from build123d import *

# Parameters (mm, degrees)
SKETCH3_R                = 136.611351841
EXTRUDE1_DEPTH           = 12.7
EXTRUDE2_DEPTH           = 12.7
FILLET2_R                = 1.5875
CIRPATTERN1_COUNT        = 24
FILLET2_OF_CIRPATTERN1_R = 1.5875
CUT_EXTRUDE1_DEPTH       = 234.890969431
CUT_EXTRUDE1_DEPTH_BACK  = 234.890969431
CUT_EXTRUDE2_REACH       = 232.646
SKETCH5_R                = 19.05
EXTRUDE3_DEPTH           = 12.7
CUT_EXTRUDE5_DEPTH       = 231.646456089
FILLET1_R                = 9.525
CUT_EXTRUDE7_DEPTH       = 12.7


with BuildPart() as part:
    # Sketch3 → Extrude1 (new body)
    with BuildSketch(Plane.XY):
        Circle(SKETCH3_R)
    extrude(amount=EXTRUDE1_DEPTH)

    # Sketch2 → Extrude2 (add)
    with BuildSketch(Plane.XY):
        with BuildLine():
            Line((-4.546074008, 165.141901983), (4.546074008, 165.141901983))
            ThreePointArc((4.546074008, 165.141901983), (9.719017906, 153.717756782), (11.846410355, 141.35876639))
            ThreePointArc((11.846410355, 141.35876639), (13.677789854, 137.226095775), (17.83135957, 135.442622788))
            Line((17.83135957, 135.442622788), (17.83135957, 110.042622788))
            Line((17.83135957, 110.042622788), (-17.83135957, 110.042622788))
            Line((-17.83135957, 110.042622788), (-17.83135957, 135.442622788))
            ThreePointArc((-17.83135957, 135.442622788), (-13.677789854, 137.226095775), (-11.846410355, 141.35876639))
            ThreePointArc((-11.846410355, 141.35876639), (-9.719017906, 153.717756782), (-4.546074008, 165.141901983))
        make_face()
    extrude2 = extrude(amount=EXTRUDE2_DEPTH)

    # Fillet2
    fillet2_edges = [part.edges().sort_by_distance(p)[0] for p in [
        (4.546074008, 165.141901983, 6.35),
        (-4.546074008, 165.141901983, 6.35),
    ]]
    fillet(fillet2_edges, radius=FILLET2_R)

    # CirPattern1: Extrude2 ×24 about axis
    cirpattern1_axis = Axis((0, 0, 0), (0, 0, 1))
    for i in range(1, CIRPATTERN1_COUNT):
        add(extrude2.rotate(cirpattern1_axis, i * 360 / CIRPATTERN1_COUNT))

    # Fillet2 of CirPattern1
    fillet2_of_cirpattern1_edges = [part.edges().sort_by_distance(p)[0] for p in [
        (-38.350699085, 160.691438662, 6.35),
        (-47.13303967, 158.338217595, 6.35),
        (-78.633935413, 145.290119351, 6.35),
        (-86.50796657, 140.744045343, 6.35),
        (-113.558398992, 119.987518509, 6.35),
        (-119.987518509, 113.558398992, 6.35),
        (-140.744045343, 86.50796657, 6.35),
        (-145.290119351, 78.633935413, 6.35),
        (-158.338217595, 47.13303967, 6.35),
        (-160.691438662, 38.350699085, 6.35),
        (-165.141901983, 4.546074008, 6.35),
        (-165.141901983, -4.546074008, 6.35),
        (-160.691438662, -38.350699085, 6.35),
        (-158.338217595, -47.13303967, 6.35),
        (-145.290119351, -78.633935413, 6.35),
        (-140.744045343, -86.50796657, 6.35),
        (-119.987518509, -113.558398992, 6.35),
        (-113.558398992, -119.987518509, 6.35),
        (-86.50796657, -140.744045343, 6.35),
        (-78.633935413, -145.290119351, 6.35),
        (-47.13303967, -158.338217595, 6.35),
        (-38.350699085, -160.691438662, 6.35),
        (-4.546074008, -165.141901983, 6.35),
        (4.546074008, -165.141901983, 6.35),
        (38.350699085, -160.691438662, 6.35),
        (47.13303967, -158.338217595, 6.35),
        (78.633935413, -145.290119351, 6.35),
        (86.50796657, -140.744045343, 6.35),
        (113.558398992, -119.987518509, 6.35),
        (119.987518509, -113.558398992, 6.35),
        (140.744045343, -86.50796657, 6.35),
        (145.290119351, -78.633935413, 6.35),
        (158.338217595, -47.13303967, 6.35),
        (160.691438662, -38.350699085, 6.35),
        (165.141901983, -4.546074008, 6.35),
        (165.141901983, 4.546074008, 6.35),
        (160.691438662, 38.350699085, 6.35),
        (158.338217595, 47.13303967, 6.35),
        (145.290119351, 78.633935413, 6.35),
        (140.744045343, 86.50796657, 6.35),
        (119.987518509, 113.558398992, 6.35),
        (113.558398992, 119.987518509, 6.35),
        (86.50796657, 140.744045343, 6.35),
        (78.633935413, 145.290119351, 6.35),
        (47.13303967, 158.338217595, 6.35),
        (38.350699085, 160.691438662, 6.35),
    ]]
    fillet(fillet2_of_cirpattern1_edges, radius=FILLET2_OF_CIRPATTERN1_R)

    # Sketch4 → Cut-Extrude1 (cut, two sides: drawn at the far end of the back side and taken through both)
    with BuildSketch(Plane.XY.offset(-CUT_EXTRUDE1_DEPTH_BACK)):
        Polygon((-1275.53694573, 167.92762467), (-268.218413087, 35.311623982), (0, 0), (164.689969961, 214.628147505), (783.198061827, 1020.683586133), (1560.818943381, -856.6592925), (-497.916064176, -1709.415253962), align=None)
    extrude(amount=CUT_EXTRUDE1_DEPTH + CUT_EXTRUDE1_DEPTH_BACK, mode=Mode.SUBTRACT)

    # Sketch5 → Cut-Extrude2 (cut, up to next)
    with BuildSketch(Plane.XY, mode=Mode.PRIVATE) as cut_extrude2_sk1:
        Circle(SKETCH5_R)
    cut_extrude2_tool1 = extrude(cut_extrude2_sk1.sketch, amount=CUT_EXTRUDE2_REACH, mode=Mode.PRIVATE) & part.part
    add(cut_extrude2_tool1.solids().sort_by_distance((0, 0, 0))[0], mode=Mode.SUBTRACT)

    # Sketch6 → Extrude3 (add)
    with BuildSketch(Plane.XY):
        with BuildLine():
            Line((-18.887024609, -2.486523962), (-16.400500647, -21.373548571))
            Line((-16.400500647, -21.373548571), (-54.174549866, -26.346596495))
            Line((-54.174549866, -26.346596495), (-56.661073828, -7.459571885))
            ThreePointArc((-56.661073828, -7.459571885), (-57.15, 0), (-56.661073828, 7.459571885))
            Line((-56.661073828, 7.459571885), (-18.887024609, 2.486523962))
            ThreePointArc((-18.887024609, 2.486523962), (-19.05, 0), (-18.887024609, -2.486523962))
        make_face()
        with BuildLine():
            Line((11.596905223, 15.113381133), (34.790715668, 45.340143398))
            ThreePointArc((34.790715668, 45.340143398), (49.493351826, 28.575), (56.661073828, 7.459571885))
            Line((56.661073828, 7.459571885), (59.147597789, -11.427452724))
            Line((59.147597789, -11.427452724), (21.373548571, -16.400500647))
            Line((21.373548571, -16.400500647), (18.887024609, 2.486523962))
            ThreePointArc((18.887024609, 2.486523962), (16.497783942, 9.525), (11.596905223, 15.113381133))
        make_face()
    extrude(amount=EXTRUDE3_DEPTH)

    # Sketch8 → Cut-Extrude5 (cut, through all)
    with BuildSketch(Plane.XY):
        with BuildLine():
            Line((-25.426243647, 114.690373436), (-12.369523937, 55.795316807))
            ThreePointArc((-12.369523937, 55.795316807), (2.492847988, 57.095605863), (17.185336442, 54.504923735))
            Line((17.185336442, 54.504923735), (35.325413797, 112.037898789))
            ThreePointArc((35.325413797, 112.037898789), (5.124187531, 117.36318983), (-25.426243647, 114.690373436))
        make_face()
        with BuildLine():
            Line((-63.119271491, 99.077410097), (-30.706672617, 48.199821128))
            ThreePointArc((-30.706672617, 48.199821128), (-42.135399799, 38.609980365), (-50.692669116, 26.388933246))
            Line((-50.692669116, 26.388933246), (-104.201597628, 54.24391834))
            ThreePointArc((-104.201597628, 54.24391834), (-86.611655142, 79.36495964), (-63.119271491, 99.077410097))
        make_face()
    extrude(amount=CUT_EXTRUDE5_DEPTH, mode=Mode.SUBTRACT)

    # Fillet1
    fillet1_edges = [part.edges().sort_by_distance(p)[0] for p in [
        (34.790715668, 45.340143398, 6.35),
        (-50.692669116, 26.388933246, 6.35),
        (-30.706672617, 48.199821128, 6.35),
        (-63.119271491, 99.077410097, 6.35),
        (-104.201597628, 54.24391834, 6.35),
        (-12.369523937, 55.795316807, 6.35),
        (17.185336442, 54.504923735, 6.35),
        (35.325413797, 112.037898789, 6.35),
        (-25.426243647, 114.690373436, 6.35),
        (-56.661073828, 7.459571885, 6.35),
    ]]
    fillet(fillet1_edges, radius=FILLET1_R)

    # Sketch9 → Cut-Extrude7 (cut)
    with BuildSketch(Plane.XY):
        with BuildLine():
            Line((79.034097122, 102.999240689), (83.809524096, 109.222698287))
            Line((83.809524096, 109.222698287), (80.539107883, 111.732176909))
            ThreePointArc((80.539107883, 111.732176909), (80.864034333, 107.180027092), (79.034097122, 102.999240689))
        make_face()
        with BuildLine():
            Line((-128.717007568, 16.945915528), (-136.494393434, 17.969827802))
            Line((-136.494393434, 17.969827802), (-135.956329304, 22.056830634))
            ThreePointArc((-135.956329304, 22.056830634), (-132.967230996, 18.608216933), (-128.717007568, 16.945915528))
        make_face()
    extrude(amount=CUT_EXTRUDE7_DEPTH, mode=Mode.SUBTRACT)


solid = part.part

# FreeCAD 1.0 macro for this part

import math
import FreeCAD as App
import Part
import Sketcher
from FreeCAD import Vector
Q = App.Units.Quantity


def edges_at(feature, points):
    """Names of the edges that pass closest to the given points."""
    edges = feature.Shape.Edges
    near = lambda p: min(range(len(edges)), key=lambda i: edges[i].distToShape(Part.Vertex(*p))[0])
    return sorted({f"Edge{near(p) + 1}" for p in points})

doc = App.newDocument("Part")
body = doc.addObject("PartDesign::Body", "Body")

# Sketch on XY plane
sketch1 = body.newObject("Sketcher::SketchObject", "Sketch")
sketch1.AttachmentSupport = (doc.getObject("XY_Plane"), [""])
sketch1.MapMode = "FlatFace"
sketch1.addGeometry(Part.Circle(Vector(0, 0, 0), Vector(0, 0, 1), 137), False)
sketch1.addConstraint([
    Sketcher.Constraint("Coincident", 0, 3, -1, 1),
    Sketcher.Constraint("Diameter", 0, Q("273.222704 mm")),
])
pad1 = body.newObject("PartDesign::Pad", "Pad")
pad1.Profile = sketch1
pad1.Length = Q("0.5 in")

# Sketch on XY plane
sketch2 = body.newObject("Sketcher::SketchObject", "Sketch001")
sketch2.AttachmentSupport = (doc.getObject("XY_Plane"), [""])
sketch2.MapMode = "FlatFace"
sketch2.addGeometry([
    Part.LineSegment(Vector(5, 165, 0), Vector(-5, 165, 0)),  # 0
    Part.ArcOfCircle(Part.Circle(Vector(37, 139, 0), Vector(0, 0, 1), 49), math.radians(148), math.radians(178)),  # 1
    Part.ArcOfCircle(Part.Circle(Vector(-18, 142, 0), Vector(0, 0, 1), 6), math.radians(-88), math.radians(-2)),  # 2
    Part.LineSegment(Vector(-18, 135, 0), Vector(-18, 110, 0)),  # 3
    Part.LineSegment(Vector(-18, 110, 0), Vector(18, 110, 0)),  # 4
    Part.LineSegment(Vector(18, 110, 0), Vector(18, 135, 0)),  # 5
    Part.ArcOfCircle(Part.Circle(Vector(18, 142, 0), Vector(0, 0, 1), 6), math.radians(-178), math.radians(-92)),  # 6
    Part.ArcOfCircle(Part.Circle(Vector(-37, 139, 0), Vector(0, 0, 1), 49), math.radians(2), math.radians(32)),  # 7
], False)
sketch2.addConstraint([
    Sketcher.Constraint("Coincident", 0, 2, 1, 1),
    Sketcher.Constraint("Tangent", 1, 2, 2, 2),
    Sketcher.Constraint("Coincident", 2, 1, 3, 1),
    Sketcher.Constraint("Coincident", 3, 2, 4, 1),
    Sketcher.Constraint("Coincident", 4, 2, 5, 1),
    Sketcher.Constraint("Coincident", 5, 2, 6, 2),
    Sketcher.Constraint("Tangent", 6, 1, 7, 1),
    Sketcher.Constraint("Coincident", 7, 2, 0, 1),
    Sketcher.Constraint("Horizontal", 0),
    Sketcher.Constraint("Vertical", 3),
    Sketcher.Constraint("Horizontal", 4),
    Sketcher.Constraint("Vertical", 5),
    Sketcher.Constraint("Equal", 2, 6),
    Sketcher.Constraint("Equal", 1, 7),
    Sketcher.Constraint("Symmetric", 2, 3, 6, 3, -2),
    Sketcher.Constraint("Horizontal", 1, 3, 7, 3),
    Sketcher.Constraint("Horizontal", 2, 1, 5, 2),
    Sketcher.Constraint("DistanceY", 3, 2, 3, 1, Q("1 in")),
    Sketcher.Constraint("Radius", 1, Q("49.366081 mm")),
    Sketcher.Constraint("Radius", 2, Q("6.185748 mm")),
    Sketcher.Constraint("DistanceX", 0, 2, 0, 1, Q("9.092148 mm")),
    Sketcher.Constraint("DistanceX", 4, 1, 4, 2, Q("35.662719 mm")),
    Sketcher.Constraint("DistanceY", -1, 1, 0, 2, Q("165.141902 mm")),
    Sketcher.Constraint("DistanceX", 0, 2, 1, 3, Q("42.019899 mm")),
    Sketcher.Constraint("DistanceX", 1, 2, -1, 1, Q("11.84641 mm")),
])
pad2 = body.newObject("PartDesign::Pad", "Pad001")
pad2.Profile = sketch2
pad2.Length = Q("0.5 in")
doc.recompute()

fillet = body.newObject("PartDesign::Fillet", "Fillet")
fillet.Base = (pad2, edges_at(pad2, [(4.546, 165.142, 6.35), (-4.546, 165.142, 6.35)]))
fillet.Radius = Q("0.0625 in")
doc.recompute()

polarpattern = body.newObject("PartDesign::PolarPattern", "PolarPattern")
polarpattern.Originals = [pad2]
polarpattern.Axis = (doc.getObject("Z_Axis"), [""])
polarpattern.Angle = 360
polarpattern.Occurrences = 24
body.Tip = polarpattern
doc.recompute()

fillet2 = body.newObject("PartDesign::Fillet", "Fillet001")
fillet2.Base = (polarpattern, edges_at(polarpattern, [
    (-38.351, 160.691, 6.35),
    (-47.133, 158.338, 6.35),
    (-78.634, 145.29, 6.35),
    (-86.508, 140.744, 6.35),
    (-113.558, 119.988, 6.35),
    (-119.988, 113.558, 6.35),
    (-140.744, 86.508, 6.35),
    (-145.29, 78.634, 6.35),
    (-158.338, 47.133, 6.35),
    (-160.691, 38.351, 6.35),
    (-165.142, 4.546, 6.35),
    (-165.142, -4.546, 6.35),
    (-160.691, -38.351, 6.35),
    (-158.338, -47.133, 6.35),
    (-145.29, -78.634, 6.35),
    (-140.744, -86.508, 6.35),
    (-119.988, -113.558, 6.35),
    (-113.558, -119.988, 6.35),
    (-86.508, -140.744, 6.35),
    (-78.634, -145.29, 6.35),
    (-47.133, -158.338, 6.35),
    (-38.351, -160.691, 6.35),
    (-4.546, -165.142, 6.35),
    (4.546, -165.142, 6.35),
    (38.351, -160.691, 6.35),
    (47.133, -158.338, 6.35),
    (78.634, -145.29, 6.35),
    (86.508, -140.744, 6.35),
    (113.558, -119.988, 6.35),
    (119.988, -113.558, 6.35),
    (140.744, -86.508, 6.35),
    (145.29, -78.634, 6.35),
    (158.338, -47.133, 6.35),
    (160.691, -38.351, 6.35),
    (165.142, -4.546, 6.35),
    (165.142, 4.546, 6.35),
    (160.691, 38.351, 6.35),
    (158.338, 47.133, 6.35),
    (145.29, 78.634, 6.35),
    (140.744, 86.508, 6.35),
    (119.988, 113.558, 6.35),
    (113.558, 119.988, 6.35),
    (86.508, 140.744, 6.35),
    (78.634, 145.29, 6.35),
    (47.133, 158.338, 6.35),
    (38.351, 160.691, 6.35),
]))
fillet2.Radius = Q("0.0625 in")

# Sketch on XY plane
sketch3 = body.newObject("Sketcher::SketchObject", "Sketch002")
sketch3.AttachmentSupport = (doc.getObject("XY_Plane"), [""])
sketch3.MapMode = "FlatFace"
sketch3.addGeometry([
    Part.LineSegment(Vector(-268, 35, 0), Vector(-1276, 168, 0)),  # 0
    Part.LineSegment(Vector(-1276, 168, 0), Vector(-498, -1709, 0)),  # 1
    Part.LineSegment(Vector(-498, -1709, 0), Vector(1561, -857, 0)),  # 2
    Part.LineSegment(Vector(1561, -857, 0), Vector(783, 1021, 0)),  # 3
    Part.LineSegment(Vector(783, 1021, 0), Vector(165, 215, 0)),  # 4
    Part.LineSegment(Vector(165, 215, 0), Vector(0, 0, 0)),  # 5
    Part.LineSegment(Vector(0, 0, 0), Vector(-268, 35, 0)),  # 6
], False)
sketch3.addConstraint([
    Sketcher.Constraint("Coincident", 0, 2, 1, 1),
    Sketcher.Constraint("Coincident", 1, 2, 2, 1),
    Sketcher.Constraint("Coincident", 2, 2, 3, 1),
    Sketcher.Constraint("Coincident", 3, 2, 4, 1),
    Sketcher.Constraint("Coincident", 4, 2, 5, 1),
    Sketcher.Constraint("Coincident", 5, 2, 6, 1),
    Sketcher.Constraint("Coincident", 6, 2, 0, 1),
    Sketcher.Constraint("Coincident", 5, 2, -1, 1),
    Sketcher.Constraint("Perpendicular", 1, 2),
    Sketcher.Constraint("Perpendicular", 2, 3),
    Sketcher.Constraint("Parallel", 4, 5),
    Sketcher.Constraint("Parallel", 0, 6),
    Sketcher.Constraint("Equal", 1, 3),
    Sketcher.Constraint("Equal", 0, 4),
    Sketcher.Constraint("Equal", 5, 6),
    Sketcher.Constraint("Angle", 0, Q("172.5 deg")),
    Sketcher.Constraint("Angle", 1, Q("-67.5 deg")),
    Sketcher.Constraint("Distance", 5, Q("10.6509 in")),
    Sketcher.Constraint("DistanceY", 1, 2, 4, 2, Q("1924.043401 mm")),
    Sketcher.Constraint("DistanceY", 6, 2, 0, 2, Q("132.616001 mm")),
])
pocket1 = body.newObject("PartDesign::Pocket", "Pocket")
pocket1.Profile = sketch3
pocket1.Type = "ThroughAll"
pocket1.Midplane = True

# Sketch on XY plane
sketch4 = body.newObject("Sketcher::SketchObject", "Sketch003")
sketch4.AttachmentSupport = (doc.getObject("XY_Plane"), [""])
sketch4.MapMode = "FlatFace"
sketch4.addGeometry(Part.Circle(Vector(0, 0, 0), Vector(0, 0, 1), 19), False)
sketch4.addConstraint([
    Sketcher.Constraint("Coincident", 0, 3, -1, 1),
    Sketcher.Constraint("Diameter", 0, Q("1.5 in")),
])
pocket2 = body.newObject("PartDesign::Pocket", "Pocket001")
pocket2.Profile = sketch4
pocket2.Type = "UpToFirst"
pocket2.Reversed = True

# Sketch on XY plane
sketch5 = body.newObject("Sketcher::SketchObject", "Sketch004")
sketch5.AttachmentSupport = (doc.getObject("XY_Plane"), [""])
sketch5.MapMode = "FlatFace"
sketch5.addGeometry([
    Part.LineSegment(Vector(-16.4, -21.4, 0), Vector(-18.9, -2.5, 0)),  # 0
    Part.ArcOfCircle(Part.Circle(Vector(0, 0, 0), Vector(0, 0, 1), 19), math.radians(172.5), math.radians(187.5)),  # 1
    Part.LineSegment(Vector(-18.9, 2.5, 0), Vector(-56.7, 7.5, 0)),  # 2
    Part.ArcOfCircle(Part.Circle(Vector(0, 0, 0), Vector(0, 0, 1), 57.2), math.radians(172.5), math.radians(187.5)),  # 3
    Part.LineSegment(Vector(-56.7, -7.5, 0), Vector(-54.2, -26.3, 0)),  # 4
    Part.LineSegment(Vector(-54.2, -26.3, 0), Vector(-16.4, -21.4, 0)),  # 5
    Part.LineSegment(Vector(34.8, 45.3, 0), Vector(11.6, 15.1, 0)),  # 6
    Part.ArcOfCircle(Part.Circle(Vector(0, 0, 0), Vector(0, 0, 1), 19.1), math.radians(8), math.radians(52)),  # 7
    Part.LineSegment(Vector(18.9, 2.5, 0), Vector(21.4, -16.4, 0)),  # 8
    Part.LineSegment(Vector(21.4, -16.4, 0), Vector(59.1, -11.4, 0)),  # 9
    Part.LineSegment(Vector(59.1, -11.4, 0), Vector(56.7, 7.5, 0)),  # 10
    Part.ArcOfCircle(Part.Circle(Vector(0, 0, 0), Vector(0, 0, 1), 57.2), math.radians(8), math.radians(52)),  # 11
], False)
sketch5.addConstraint([
    Sketcher.Constraint("Tangent", 0, 2, 1, 2),
    Sketcher.Constraint("Coincident", 1, 1, 2, 1),
    Sketcher.Constraint("Coincident", 2, 2, 3, 1),
    Sketcher.Constraint("Tangent", 3, 2, 4, 1),
    Sketcher.Constraint("Coincident", 4, 2, 5, 1),
    Sketcher.Constraint("Coincident", 5, 2, 0, 1),
    Sketcher.Constraint("Coincident", 6, 2, 7, 2),
    Sketcher.Constraint("Tangent", 7, 1, 8, 1),
    Sketcher.Constraint("Coincident", 8, 2, 9, 1),
    Sketcher.Constraint("Coincident", 9, 2, 10, 1),
    Sketcher.Constraint("Tangent", 10, 2, 11, 1),
    Sketcher.Constraint("Coincident", 11, 2, 6, 1),
    Sketcher.Constraint("Coincident", 1, 3, -1, 1),
    Sketcher.Constraint("Coincident", 3, 3, -1, 1),
    Sketcher.Constraint("Coincident", 7, 3, -1, 1),
    Sketcher.Constraint("Coincident", 11, 3, -1, 1),
    Sketcher.Constraint("Equal", 1, 7),
    Sketcher.Constraint("Equal", 3, 11),
    Sketcher.Constraint("Parallel", 0, 4),
    Sketcher.Constraint("Perpendicular", 4, 5),
    Sketcher.Constraint("Perpendicular", 5, 8),
    Sketcher.Constraint("Perpendicular", 8, 9),
    Sketcher.Constraint("Perpendicular", 9, 10),
    Sketcher.Constraint("Horizontal", 1, 1, 7, 1),
    Sketcher.Constraint("Horizontal", 2, 2, 10, 2),
    Sketcher.Constraint("Equal", 4, 8),
    Sketcher.Constraint("Radius", 1, Q("0.75 in")),
    Sketcher.Constraint("Radius", 3, Q("2.25 in")),
    Sketcher.Constraint("Angle", 0, Q("97.5 deg")),
    Sketcher.Constraint("Angle", 6, Q("-127.5 deg")),
    Sketcher.Constraint("Distance", 0, Q("0.75 in")),
    Sketcher.Constraint("DistanceY", -1, 1, 6, 2, Q("15.113381 mm")),
])
pad3 = body.newObject("PartDesign::Pad", "Pad002")
pad3.Profile = sketch5
pad3.Length = Q("0.5 in")

# Sketch on XY plane
sketch6 = body.newObject("Sketcher::SketchObject", "Sketch005")
sketch6.AttachmentSupport = (doc.getObject("XY_Plane"), [""])
sketch6.MapMode = "FlatFace"
sketch6.addGeometry([
    Part.LineSegment(Vector(-25, 115, 0), Vector(-12, 56, 0)),  # 0
    Part.ArcOfCircle(Part.Circle(Vector(0, 0, 0), Vector(0, 0, 1), 57), math.radians(73), math.radians(102)),  # 1
    Part.LineSegment(Vector(17, 55, 0), Vector(35, 112, 0)),  # 2
    Part.ArcOfCircle(Part.Circle(Vector(0, 0, 0), Vector(0, 0, 1), 117), math.radians(73), math.radians(103)),  # 3
    Part.LineSegment(Vector(-31, 48, 0), Vector(-63, 99, 0)),  # 4
    Part.ArcOfCircle(Part.Circle(Vector(0, 0, 0), Vector(0, 0, 1), 117), math.radians(123), math.radians(152)),  # 5
    Part.LineSegment(Vector(-104, 54, 0), Vector(-51, 26, 0)),  # 6
    Part.ArcOfCircle(Part.Circle(Vector(0, 0, 0), Vector(0, 0, 1), 57), math.radians(122), math.radians(153)),  # 7
], False)
sketch6.addConstraint([
    Sketcher.Constraint("Coincident", 0, 2, 1, 2),
    Sketcher.Constraint("Coincident", 1, 1, 2, 1),
    Sketcher.Constraint("Coincident", 2, 2, 3, 1),
    Sketcher.Constraint("Coincident", 3, 2, 0, 1),
    Sketcher.Constraint("Coincident", 4, 2, 5, 1),
    Sketcher.Constraint("Coincident", 5, 2, 6, 1),
    Sketcher.Constraint("Coincident", 6, 2, 7, 2),
    Sketcher.Constraint("Coincident", 7, 1, 4, 1),
    Sketcher.Constraint("Coincident", 1, 3, -1, 1),
    Sketcher.Constraint("Coincident", 3, 3, -1, 1),
    Sketcher.Constraint("Coincident", 5, 3, -1, 1),
    Sketcher.Constraint("Coincident", 7, 3, -1, 1),
    Sketcher.Constraint("Equal", 3, 5),
    Sketcher.Constraint("Equal", 1, 7),
    Sketcher.Constraint("Radius", 1, Q("2.25 in")),
    Sketcher.Constraint("Radius", 3, Q("4.625 in")),
    Sketcher.Constraint("Angle", 0, Q("-77.5 deg")),
    Sketcher.Constraint("Angle", 2, Q("72.5 deg")),
    Sketcher.Constraint("Angle", 4, Q("122.5 deg")),
    Sketcher.Constraint("Angle", 6, Q("-27.5 deg")),
    Sketcher.Constraint("DistanceY", -1, 1, 2, 2, Q("112.037899 mm")),
    Sketcher.Constraint("DistanceY", 5, 2, 0, 2, Q("1.551398 mm")),
    Sketcher.Constraint("DistanceX", 4, 2, -1, 1, Q("63.119271 mm")),
    Sketcher.Constraint("DistanceX", 6, 2, -1, 1, Q("50.692669 mm")),
])
pocket3 = body.newObject("PartDesign::Pocket", "Pocket002")
pocket3.Profile = sketch6
pocket3.Type = "ThroughAll"
pocket3.Reversed = True
doc.recompute()

fillet3 = body.newObject("PartDesign::Fillet", "Fillet002")
fillet3.Base = (pocket3, edges_at(pocket3, [
    (34.791, 45.34, 6.35),
    (-50.693, 26.389, 6.35),
    (-30.707, 48.2, 6.35),
    (-63.119, 99.077, 6.35),
    (-104.202, 54.244, 6.35),
    (-12.37, 55.795, 6.35),
    (17.185, 54.505, 6.35),
    (35.325, 112.038, 6.35),
    (-25.426, 114.69, 6.35),
    (-56.661, 7.46, 6.35),
]))
fillet3.Radius = Q("0.375 in")

# Sketch on XY plane
sketch7 = body.newObject("Sketcher::SketchObject", "Sketch006")
sketch7.AttachmentSupport = (doc.getObject("XY_Plane"), [""])
sketch7.MapMode = "FlatFace"
sketch7.addGeometry([
    Part.LineSegment(Vector(79, 103, 0), Vector(83.8, 109.2, 0)),  # 0
    Part.LineSegment(Vector(83.8, 109.2, 0), Vector(80.5, 111.7, 0)),  # 1
    Part.ArcOfCircle(Part.Circle(Vector(71.5, 108.8, 0), Vector(0, 0, 1), 9.5), math.radians(-37), math.radians(18)),  # 2
    Part.LineSegment(Vector(-136.5, 18, 0), Vector(-128.7, 16.9, 0)),  # 3
    Part.ArcOfCircle(Part.Circle(Vector(-127.5, 26.4, 0), Vector(0, 0, 1), 9.5), math.radians(-153), math.radians(-97)),  # 4
    Part.LineSegment(Vector(-136, 22.1, 0), Vector(-136.5, 18, 0)),  # 5
], False)
sketch7.addConstraint([
    Sketcher.Constraint("Coincident", 0, 2, 1, 1),
    Sketcher.Constraint("Coincident", 1, 2, 2, 2),
    Sketcher.Constraint("Tangent", 2, 1, 0, 1),
    Sketcher.Constraint("Tangent", 3, 2, 4, 2),
    Sketcher.Constraint("Coincident", 4, 1, 5, 1),
    Sketcher.Constraint("Coincident", 5, 2, 3, 1),
    Sketcher.Constraint("Equal", 2, 4),
    Sketcher.Constraint("Perpendicular", 0, 1),
    Sketcher.Constraint("Perpendicular", 3, 5),
    Sketcher.Constraint("Equal", 0, 3),
    Sketcher.Constraint("Radius", 2, Q("0.375 in")),
    Sketcher.Constraint("Angle", 0, Q("52.5 deg")),
    Sketcher.Constraint("Angle", 3, Q("-7.5 deg")),
    Sketcher.Constraint("DistanceY", -1, 1, 0, 2, Q("109.222698 mm")),
    Sketcher.Constraint("DistanceX", 2, 3, 1, 2, Q("9.061701 mm")),
    Sketcher.Constraint("DistanceX", 5, 2, 2, 3, Q("207.9718 mm")),
    Sketcher.Constraint("DistanceX", 4, 1, -1, 1, Q("135.956329 mm")),
    Sketcher.Constraint("DistanceY", -1, 1, 4, 1, Q("22.056831 mm")),
])
pocket4 = body.newObject("PartDesign::Pocket", "Pocket003")
pocket4.Profile = sketch7
pocket4.Length = Q("0.5 in")
pocket4.Reversed = True

doc.recompute()
